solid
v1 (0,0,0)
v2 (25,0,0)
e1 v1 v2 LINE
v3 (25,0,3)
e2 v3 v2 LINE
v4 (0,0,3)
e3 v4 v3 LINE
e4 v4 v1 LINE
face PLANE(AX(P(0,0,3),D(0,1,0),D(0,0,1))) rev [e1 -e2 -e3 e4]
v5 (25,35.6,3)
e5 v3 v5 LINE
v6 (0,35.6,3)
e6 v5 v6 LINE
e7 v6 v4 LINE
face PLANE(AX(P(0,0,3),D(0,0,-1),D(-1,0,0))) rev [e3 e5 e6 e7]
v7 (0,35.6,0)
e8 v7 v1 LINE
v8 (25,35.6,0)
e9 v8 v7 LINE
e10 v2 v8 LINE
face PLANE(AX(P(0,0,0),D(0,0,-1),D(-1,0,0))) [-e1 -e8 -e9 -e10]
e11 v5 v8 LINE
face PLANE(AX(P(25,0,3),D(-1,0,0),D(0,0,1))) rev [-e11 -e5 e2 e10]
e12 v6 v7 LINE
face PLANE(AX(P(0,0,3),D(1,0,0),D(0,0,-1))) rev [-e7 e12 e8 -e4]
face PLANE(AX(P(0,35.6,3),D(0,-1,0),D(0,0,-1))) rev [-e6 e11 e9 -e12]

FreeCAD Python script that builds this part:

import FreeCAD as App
import Part
import Sketcher
from FreeCAD import Vector


def add_polygon(sketch, points):
    """Adds a closed chain of lines whose ends are joined by coincident constraints."""
    first, n = sketch.GeometryCount, len(points)
    for a, b in zip(points, points[1:] + points[:1]):
        sketch.addGeometry(Part.LineSegment(App.Vector(*a, 0), App.Vector(*b, 0)), False)
    for i in range(n):
        sketch.addConstraint(Sketcher.Constraint("Coincident", first + i, 2, first + (i + 1) % n, 1))

doc = App.newDocument("Part")
params = doc.addObject("Spreadsheet::Sheet", "Params")
for row, (alias, value) in enumerate([
    ("sketch1_width", "25 mm"),
    ("sketch1_height", "35.6 mm"),
    ("pad1_length", "3 mm"),
], start=1):
    params.set(f"A{row}", alias)
    params.set(f"B{row}", "=" + value)
    params.setAlias(f"B{row}", alias)

body = doc.addObject("PartDesign::Body", "Body")

# Sketch on XY plane
sketch1 = doc.addObject("Sketcher::SketchObject", "Sketch")
body.addObject(sketch1)
sketch1.AttachmentSupport = (doc.XY_Plane, [""])
sketch1.MapMode = "FlatFace"
add_polygon(sketch1, [(0, 35.6), (0, 0), (25, 0), (25, 35.6)])  # lines 0-3
sketch1.addConstraint([
    Sketcher.Constraint("Vertical", 0),
    Sketcher.Constraint("Horizontal", 1),
    Sketcher.Constraint("Vertical", 2),
    Sketcher.Constraint("Horizontal", 3),
    Sketcher.Constraint("Coincident", 0, 2, -1, 1),
    Sketcher.Constraint("DistanceX", 1, 1, 1, 2, 25.0),
    Sketcher.Constraint("DistanceY", 0, 2, 0, 1, 35.6),
])
sketch1.setExpression("Constraints[9]", "Params.sketch1_width")
sketch1.setExpression("Constraints[10]", "Params.sketch1_height")
pad1 = doc.addObject("PartDesign::Pad", "Pad")
body.addObject(pad1)
pad1.Profile = sketch1
pad1.setExpression("Length", "Params.pad1_length")

doc.recompute()
